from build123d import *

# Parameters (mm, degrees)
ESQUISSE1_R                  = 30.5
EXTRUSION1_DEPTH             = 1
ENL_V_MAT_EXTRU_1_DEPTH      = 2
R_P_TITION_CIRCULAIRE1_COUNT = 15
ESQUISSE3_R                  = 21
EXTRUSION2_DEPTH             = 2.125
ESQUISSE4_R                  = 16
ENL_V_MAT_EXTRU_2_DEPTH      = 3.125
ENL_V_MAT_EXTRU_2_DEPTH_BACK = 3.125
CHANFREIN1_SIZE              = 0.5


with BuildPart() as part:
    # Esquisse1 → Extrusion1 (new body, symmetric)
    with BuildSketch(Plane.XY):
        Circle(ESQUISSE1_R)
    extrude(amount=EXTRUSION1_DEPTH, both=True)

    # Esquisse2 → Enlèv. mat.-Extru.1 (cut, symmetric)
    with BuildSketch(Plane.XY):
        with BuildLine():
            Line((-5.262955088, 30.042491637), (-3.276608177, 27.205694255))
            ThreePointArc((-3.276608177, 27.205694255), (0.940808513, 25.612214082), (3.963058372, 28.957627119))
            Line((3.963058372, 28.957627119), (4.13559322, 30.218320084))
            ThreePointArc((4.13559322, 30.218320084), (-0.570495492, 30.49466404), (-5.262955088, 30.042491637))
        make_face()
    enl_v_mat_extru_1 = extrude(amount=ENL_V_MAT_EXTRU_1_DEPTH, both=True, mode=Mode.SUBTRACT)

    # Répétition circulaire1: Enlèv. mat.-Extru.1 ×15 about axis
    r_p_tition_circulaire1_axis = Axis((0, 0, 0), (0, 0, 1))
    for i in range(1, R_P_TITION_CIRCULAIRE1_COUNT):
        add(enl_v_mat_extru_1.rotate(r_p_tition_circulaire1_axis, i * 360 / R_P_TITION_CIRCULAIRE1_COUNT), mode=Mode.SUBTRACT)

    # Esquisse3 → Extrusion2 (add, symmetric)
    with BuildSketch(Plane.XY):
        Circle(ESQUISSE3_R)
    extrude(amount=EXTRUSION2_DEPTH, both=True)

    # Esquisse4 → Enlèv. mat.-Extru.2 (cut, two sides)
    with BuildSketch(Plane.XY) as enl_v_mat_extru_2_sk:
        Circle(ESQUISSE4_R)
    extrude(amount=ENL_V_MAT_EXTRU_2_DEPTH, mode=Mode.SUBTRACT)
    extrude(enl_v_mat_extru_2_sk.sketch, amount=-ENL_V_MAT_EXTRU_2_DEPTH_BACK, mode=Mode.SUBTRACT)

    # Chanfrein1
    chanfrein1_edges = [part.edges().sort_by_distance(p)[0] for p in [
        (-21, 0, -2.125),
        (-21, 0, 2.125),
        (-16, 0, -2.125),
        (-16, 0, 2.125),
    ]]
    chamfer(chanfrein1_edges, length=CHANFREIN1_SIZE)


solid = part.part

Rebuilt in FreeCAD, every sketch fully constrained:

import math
import FreeCAD as App
import Part
import Sketcher
Q = App.Units.Quantity


def edges_at(feature, points):
    """Names of the edges that pass closest to the given points."""
    edges = feature.Shape.Edges
    near = lambda p: min(range(len(edges)), key=lambda i: edges[i].distToShape(Part.Vertex(*p))[0])
    return sorted({f"Edge{near(p) + 1}" for p in points})

doc = App.newDocument("Part")
body = doc.addObject("PartDesign::Body", "Body")

sketch1 = body.newObject("Sketcher::SketchObject", "Sketch")
sketch1.AttachmentSupport = (doc.getObject("XY_Plane"), [""])
sketch1.MapMode = "FlatFace"
sketch1.addGeometry(Part.Circle(App.Vector(0, 0, 0), App.Vector(0, 0, 1), 30.5), False)
sketch1.addConstraint([
    Sketcher.Constraint("Coincident", 0, 3, -1, 1),
    Sketcher.Constraint("Diameter", 0, Q("61 mm")),
])
pad1 = body.newObject("PartDesign::Pad", "Pad")
pad1.Profile = sketch1
pad1.Length = 2
pad1.Midplane = True

sketch2 = body.newObject("Sketcher::SketchObject", "Sketch001")
sketch2.AttachmentSupport = (doc.getObject("XY_Plane"), [""])
sketch2.MapMode = "FlatFace"
sketch2.addGeometry([
    Part.LineSegment(App.Vector(-5.262955, 30.042492, 0), App.Vector(-3.276608, 27.205694, 0)),
    Part.ArcOfCircle(Part.Circle(App.Vector(0, 29.5, 0), App.Vector(0, 0, 1), 4), math.radians(-145), math.radians(-7.792924)),
    Part.LineSegment(App.Vector(3.963058, 28.957627, 0), App.Vector(4.135593, 30.21832, 0)),
    Part.ArcOfCircle(Part.Circle(App.Vector(0, 0, 0), App.Vector(0, 0, 1), 30.5), math.radians(82.207076), math.radians(99.936458)),
], False)
sketch2.addConstraint([
    Sketcher.Constraint("Tangent", 0, 2, 1, 1),
    Sketcher.Constraint("Tangent", 1, 2, 2, 1),
    Sketcher.Constraint("Coincident", 2, 2, 3, 1),
    Sketcher.Constraint("Coincident", 3, 2, 0, 1),
    Sketcher.Constraint("Coincident", 3, 3, -1, 1),
    Sketcher.Constraint("PointOnObject", 1, 3, -2),
    Sketcher.Constraint("Radius", 1, Q("4 mm")),
    Sketcher.Constraint("Radius", 3, Q("30.5 mm")),
    Sketcher.Constraint("Angle", 0, Q("-55 deg")),
    Sketcher.Constraint("DistanceY", -1, 1, 1, 3, Q("29.5 mm")),
    Sketcher.Constraint("DistanceX", 0, 2, 2, 2, Q("7.412201 mm")),
])
pocket1 = body.newObject("PartDesign::Pocket", "Pocket")
pocket1.Profile = sketch2
pocket1.Length = 4
pocket1.Midplane = True
doc.recompute()

polarpattern = body.newObject("PartDesign::PolarPattern", "PolarPattern")
polarpattern.Originals = [pocket1]
polarpattern.Axis = (doc.getObject("Z_Axis"), [""])
polarpattern.Angle = 360
polarpattern.Occurrences = 15
body.Tip = polarpattern

sketch3 = body.newObject("Sketcher::SketchObject", "Sketch002")
sketch3.AttachmentSupport = (doc.getObject("XY_Plane"), [""])
sketch3.MapMode = "FlatFace"
sketch3.addGeometry(Part.Circle(App.Vector(0, 0, 0), App.Vector(0, 0, 1), 21), False)
sketch3.addConstraint([
    Sketcher.Constraint("Coincident", 0, 3, -1, 1),
    Sketcher.Constraint("Diameter", 0, Q("42 mm")),
])
pad2 = body.newObject("PartDesign::Pad", "Pad001")
pad2.Profile = sketch3
pad2.Length = 4.25
pad2.Midplane = True

sketch4 = body.newObject("Sketcher::SketchObject", "Sketch003")
sketch4.AttachmentSupport = (doc.getObject("XY_Plane"), [""])
sketch4.MapMode = "FlatFace"
sketch4.addGeometry(Part.Circle(App.Vector(0, 0, 0), App.Vector(0, 0, 1), 16), False)
sketch4.addConstraint([
    Sketcher.Constraint("Coincident", 0, 3, -1, 1),
    Sketcher.Constraint("Diameter", 0, Q("32 mm")),
])
pocket2 = body.newObject("PartDesign::Pocket", "Pocket001")
pocket2.Profile = sketch4
pocket2.Type = "ThroughAll"
pocket2.Midplane = True
doc.recompute()

chamfer = body.newObject("PartDesign::Chamfer", "Chamfer")
chamfer.Base = (pocket2, edges_at(pocket2, [
    (-21, 0, -2.125),
    (-21, 0, 2.125),
    (-16, 0, -2.125),
    (-16, 0, 2.125),
]))
chamfer.Size = 0.5

doc.recompute()
